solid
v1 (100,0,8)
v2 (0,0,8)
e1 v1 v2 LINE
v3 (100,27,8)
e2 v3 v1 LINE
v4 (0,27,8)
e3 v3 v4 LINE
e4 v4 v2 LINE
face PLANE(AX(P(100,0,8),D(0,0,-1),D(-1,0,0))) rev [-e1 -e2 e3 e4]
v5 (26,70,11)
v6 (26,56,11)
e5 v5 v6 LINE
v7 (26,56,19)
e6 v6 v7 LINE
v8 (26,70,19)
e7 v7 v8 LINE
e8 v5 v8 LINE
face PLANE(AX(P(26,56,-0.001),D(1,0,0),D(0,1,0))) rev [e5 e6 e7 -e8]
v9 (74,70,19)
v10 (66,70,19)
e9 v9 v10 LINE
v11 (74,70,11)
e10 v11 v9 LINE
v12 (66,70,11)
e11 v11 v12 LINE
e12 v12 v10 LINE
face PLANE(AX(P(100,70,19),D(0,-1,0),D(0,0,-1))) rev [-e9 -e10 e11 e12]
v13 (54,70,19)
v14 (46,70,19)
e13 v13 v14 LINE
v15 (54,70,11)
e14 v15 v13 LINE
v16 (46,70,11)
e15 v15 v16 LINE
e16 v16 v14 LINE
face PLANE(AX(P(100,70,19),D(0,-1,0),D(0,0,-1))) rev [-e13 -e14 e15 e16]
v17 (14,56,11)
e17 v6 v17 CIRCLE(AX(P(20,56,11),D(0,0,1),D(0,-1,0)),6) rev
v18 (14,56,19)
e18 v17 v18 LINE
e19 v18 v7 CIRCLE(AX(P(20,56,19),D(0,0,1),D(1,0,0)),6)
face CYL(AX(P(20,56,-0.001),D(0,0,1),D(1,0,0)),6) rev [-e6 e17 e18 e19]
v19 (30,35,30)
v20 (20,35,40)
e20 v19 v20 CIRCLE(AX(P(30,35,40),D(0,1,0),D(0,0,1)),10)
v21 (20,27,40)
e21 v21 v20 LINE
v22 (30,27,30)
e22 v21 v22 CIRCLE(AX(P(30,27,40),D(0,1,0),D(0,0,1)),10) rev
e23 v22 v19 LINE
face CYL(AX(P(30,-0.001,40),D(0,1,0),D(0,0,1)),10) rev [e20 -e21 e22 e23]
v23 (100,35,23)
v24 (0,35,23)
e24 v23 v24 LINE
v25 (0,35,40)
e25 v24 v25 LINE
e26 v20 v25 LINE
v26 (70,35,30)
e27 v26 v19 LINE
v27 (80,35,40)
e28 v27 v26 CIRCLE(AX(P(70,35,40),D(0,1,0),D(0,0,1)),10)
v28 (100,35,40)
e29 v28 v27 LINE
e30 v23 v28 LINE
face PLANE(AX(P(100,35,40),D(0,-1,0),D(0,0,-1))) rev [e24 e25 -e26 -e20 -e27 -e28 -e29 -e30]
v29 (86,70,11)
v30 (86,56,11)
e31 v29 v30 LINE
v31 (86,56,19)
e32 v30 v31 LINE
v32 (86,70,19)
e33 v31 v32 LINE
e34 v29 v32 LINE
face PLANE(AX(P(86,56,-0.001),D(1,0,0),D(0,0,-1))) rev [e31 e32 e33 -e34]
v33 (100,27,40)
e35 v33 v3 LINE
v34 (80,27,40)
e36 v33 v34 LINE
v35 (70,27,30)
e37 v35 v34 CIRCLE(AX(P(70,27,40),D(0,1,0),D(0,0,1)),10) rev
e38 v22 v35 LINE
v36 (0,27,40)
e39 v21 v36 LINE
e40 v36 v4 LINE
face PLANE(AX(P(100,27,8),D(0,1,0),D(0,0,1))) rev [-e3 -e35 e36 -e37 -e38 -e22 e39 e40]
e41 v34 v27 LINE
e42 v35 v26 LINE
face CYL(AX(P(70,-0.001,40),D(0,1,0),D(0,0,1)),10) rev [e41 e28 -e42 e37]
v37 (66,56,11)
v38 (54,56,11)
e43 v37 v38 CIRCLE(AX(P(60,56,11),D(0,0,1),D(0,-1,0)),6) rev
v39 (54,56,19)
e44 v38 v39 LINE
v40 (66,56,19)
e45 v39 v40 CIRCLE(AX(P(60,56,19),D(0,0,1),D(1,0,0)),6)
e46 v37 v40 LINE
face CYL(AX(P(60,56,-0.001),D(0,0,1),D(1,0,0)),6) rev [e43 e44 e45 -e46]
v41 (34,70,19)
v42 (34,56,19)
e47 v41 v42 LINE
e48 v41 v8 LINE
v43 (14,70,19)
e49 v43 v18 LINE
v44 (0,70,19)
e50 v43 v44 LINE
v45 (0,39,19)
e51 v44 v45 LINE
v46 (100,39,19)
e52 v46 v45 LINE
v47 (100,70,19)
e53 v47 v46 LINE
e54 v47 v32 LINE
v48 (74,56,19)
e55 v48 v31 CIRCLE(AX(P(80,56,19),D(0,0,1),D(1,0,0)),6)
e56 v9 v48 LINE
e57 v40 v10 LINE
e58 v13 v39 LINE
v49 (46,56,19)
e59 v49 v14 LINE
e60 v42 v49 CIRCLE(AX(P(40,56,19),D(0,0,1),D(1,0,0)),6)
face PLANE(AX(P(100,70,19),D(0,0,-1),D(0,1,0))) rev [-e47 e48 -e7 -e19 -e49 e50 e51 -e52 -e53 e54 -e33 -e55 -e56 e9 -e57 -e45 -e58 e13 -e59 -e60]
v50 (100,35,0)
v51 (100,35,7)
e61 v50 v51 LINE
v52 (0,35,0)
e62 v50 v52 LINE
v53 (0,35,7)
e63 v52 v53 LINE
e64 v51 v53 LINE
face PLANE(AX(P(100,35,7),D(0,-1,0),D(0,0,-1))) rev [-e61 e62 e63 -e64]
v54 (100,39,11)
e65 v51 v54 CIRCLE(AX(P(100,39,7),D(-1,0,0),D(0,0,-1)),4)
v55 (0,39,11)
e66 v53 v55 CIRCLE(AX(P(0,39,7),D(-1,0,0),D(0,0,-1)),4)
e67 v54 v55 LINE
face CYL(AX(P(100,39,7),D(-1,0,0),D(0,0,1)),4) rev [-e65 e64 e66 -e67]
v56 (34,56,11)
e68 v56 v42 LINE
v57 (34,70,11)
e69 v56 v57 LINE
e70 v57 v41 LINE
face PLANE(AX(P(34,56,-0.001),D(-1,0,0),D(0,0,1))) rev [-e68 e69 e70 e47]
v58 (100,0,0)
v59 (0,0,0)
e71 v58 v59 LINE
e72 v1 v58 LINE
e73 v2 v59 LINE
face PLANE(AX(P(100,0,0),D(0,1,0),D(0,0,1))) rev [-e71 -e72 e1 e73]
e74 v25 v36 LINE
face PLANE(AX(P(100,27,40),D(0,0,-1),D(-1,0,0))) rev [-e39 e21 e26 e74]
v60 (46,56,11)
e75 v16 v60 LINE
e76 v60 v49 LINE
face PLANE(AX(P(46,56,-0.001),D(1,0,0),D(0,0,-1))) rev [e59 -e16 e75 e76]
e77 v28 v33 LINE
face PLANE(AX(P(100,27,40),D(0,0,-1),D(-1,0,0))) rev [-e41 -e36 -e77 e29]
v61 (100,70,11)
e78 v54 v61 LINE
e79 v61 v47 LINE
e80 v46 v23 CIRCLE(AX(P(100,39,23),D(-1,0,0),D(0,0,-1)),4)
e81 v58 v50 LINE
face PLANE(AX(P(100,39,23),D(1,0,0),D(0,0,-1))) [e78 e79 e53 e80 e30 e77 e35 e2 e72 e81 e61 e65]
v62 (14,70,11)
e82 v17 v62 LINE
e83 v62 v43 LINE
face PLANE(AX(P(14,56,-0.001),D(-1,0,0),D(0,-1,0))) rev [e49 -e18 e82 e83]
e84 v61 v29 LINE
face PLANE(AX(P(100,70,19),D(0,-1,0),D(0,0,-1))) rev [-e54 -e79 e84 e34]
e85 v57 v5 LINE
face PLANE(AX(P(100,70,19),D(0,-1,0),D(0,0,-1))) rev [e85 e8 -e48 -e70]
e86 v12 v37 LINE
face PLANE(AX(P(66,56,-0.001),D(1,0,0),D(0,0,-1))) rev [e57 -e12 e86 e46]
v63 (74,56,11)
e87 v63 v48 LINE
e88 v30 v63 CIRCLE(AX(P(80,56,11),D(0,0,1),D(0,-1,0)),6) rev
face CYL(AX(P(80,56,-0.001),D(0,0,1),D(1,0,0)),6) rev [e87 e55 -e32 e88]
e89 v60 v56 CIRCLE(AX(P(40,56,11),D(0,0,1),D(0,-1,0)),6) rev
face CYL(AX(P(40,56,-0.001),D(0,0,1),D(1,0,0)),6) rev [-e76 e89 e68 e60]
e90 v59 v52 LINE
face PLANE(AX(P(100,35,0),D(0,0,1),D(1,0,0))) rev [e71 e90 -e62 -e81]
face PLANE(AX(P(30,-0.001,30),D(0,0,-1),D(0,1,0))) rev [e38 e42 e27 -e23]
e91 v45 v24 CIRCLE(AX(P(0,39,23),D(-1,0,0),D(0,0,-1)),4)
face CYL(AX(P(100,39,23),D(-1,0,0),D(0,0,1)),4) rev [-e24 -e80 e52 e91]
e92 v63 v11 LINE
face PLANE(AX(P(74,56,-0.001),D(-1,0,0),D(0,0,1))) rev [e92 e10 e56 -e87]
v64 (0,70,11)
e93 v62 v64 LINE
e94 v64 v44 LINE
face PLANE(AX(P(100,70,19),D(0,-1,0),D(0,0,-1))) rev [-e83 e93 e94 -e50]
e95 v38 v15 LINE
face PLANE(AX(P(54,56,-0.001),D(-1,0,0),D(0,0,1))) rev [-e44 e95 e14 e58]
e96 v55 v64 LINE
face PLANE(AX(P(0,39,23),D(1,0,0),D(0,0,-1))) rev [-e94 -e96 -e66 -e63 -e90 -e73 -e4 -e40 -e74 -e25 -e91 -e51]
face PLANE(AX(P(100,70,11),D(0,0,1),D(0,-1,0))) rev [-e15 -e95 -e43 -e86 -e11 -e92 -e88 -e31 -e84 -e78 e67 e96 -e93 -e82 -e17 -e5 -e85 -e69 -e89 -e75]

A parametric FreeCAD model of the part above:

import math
import FreeCAD as App
import Part
import Sketcher

V = App.Vector

doc = App.newDocument("Part")
body = doc.addObject("PartDesign::Body", "Body")

sketch1 = body.newObject("Sketcher::SketchObject", "Sketch")
sketch1.AttachmentSupport = (doc.getObject("YZ_Plane"), [""])
sketch1.MapMode = "FlatFace"
sketch1.addGeometry(Part.LineSegment(V(70, 11, 0), V(70, 19, 0)), False)
sketch1.addGeometry(Part.LineSegment(V(70, 19, 0), V(39, 19, 0)), False)
sketch1.addGeometry(Part.ArcOfCircle(Part.Circle(V(39, 23, 0), V(0, 0, 1), 4), math.radians(180), math.radians(270)), False)
sketch1.addGeometry(Part.LineSegment(V(35, 23, 0), V(35, 40, 0)), False)
sketch1.addGeometry(Part.LineSegment(V(35, 40, 0), V(27, 40, 0)), False)
sketch1.addGeometry(Part.LineSegment(V(27, 40, 0), V(27, 8, 0)), False)
sketch1.addGeometry(Part.LineSegment(V(27, 8, 0), V(0, 8, 0)), False)
sketch1.addGeometry(Part.LineSegment(V(0, 8, 0), V(0, 0, 0)), False)
sketch1.addGeometry(Part.LineSegment(V(0, 0, 0), V(35, 0, 0)), False)
sketch1.addGeometry(Part.LineSegment(V(35, 0, 0), V(35, 7, 0)), False)
sketch1.addGeometry(Part.ArcOfCircle(Part.Circle(V(39, 7, 0), V(0, 0, 1), 4), math.radians(90), math.radians(180)), False)
sketch1.addGeometry(Part.LineSegment(V(39, 11, 0), V(70, 11, 0)), False)
sketch1.addConstraint(Sketcher.Constraint("Coincident", 0, 2, 1, 1))
sketch1.addConstraint(Sketcher.Constraint("Tangent", 1, 2, 2, 2))
sketch1.addConstraint(Sketcher.Constraint("Tangent", 2, 1, 3, 1))
sketch1.addConstraint(Sketcher.Constraint("Coincident", 3, 2, 4, 1))
sketch1.addConstraint(Sketcher.Constraint("Coincident", 4, 2, 5, 1))
sketch1.addConstraint(Sketcher.Constraint("Coincident", 5, 2, 6, 1))
sketch1.addConstraint(Sketcher.Constraint("Coincident", 6, 2, 7, 1))
sketch1.addConstraint(Sketcher.Constraint("Coincident", 7, 2, 8, 1))
sketch1.addConstraint(Sketcher.Constraint("Coincident", 8, 2, 9, 1))
sketch1.addConstraint(Sketcher.Constraint("Tangent", 9, 2, 10, 2))
sketch1.addConstraint(Sketcher.Constraint("Tangent", 10, 1, 11, 1))
sketch1.addConstraint(Sketcher.Constraint("Coincident", 11, 2, 0, 1))
sketch1.addConstraint(Sketcher.Constraint("Vertical", 0))
sketch1.addConstraint(Sketcher.Constraint("Horizontal", 1))
sketch1.addConstraint(Sketcher.Constraint("Vertical", 3))
sketch1.addConstraint(Sketcher.Constraint("Horizontal", 4))
sketch1.addConstraint(Sketcher.Constraint("Vertical", 5))
sketch1.addConstraint(Sketcher.Constraint("Horizontal", 6))
sketch1.addConstraint(Sketcher.Constraint("Vertical", 7))
sketch1.addConstraint(Sketcher.Constraint("Horizontal", 8))
sketch1.addConstraint(Sketcher.Constraint("Vertical", 9))
sketch1.addConstraint(Sketcher.Constraint("Horizontal", 11))
sketch1.addConstraint(Sketcher.Constraint("Coincident", 7, 2, -1, 1))
sketch1.addConstraint(Sketcher.Constraint("Equal", 2, 10))
sketch1.addConstraint(Sketcher.Constraint("Vertical", 2, 3, 10, 3))
sketch1.addConstraint(Sketcher.Constraint("Equal", 4, 0))
sketch1.addConstraint(Sketcher.Constraint("Equal", 0, 7))
sketch1.addConstraint(Sketcher.Constraint("Radius", 2, 4.0))
sketch1.addConstraint(Sketcher.Constraint("DistanceX", 1, 2, 1, 1, 31.0))
sketch1.addConstraint(Sketcher.Constraint("DistanceX", 4, 2, 4, 1, 8.0))
sketch1.addConstraint(Sketcher.Constraint("DistanceX", 6, 2, 6, 1, 27.0))
sketch1.addConstraint(Sketcher.Constraint("DistanceY", 3, 1, 3, 2, 17.0))
sketch1.addConstraint(Sketcher.Constraint("DistanceY", 5, 2, 5, 1, 32.0))
pad1 = body.newObject("PartDesign::Pad", "Pad")
pad1.Profile = sketch1
pad1.Length = 100

sketch2 = body.newObject("Sketcher::SketchObject", "Sketch001")
sketch2.AttachmentSupport = (doc.getObject("XY_Plane"), [""])
sketch2.MapMode = "FlatFace"
sketch2.AttachmentOffset = App.Placement(V(0, 0, 19), App.Rotation())
sketch2.addGeometry(Part.LineSegment(V(14, 70, 0), V(14, 56, 0)), False)
sketch2.addGeometry(Part.ArcOfCircle(Part.Circle(V(20, 56, 0), V(0, 0, 1), 6), math.radians(180), math.radians(360)), False)
sketch2.addGeometry(Part.LineSegment(V(26, 56, 0), V(26, 70, 0)), False)
sketch2.addGeometry(Part.LineSegment(V(26, 70, 0), V(14, 70, 0)), False)
sketch2.addConstraint(Sketcher.Constraint("Tangent", 0, 2, 1, 1))
sketch2.addConstraint(Sketcher.Constraint("Tangent", 1, 2, 2, 1))
sketch2.addConstraint(Sketcher.Constraint("Coincident", 2, 2, 3, 1))
sketch2.addConstraint(Sketcher.Constraint("Coincident", 3, 2, 0, 1))
sketch2.addConstraint(Sketcher.Constraint("Vertical", 0))
sketch2.addConstraint(Sketcher.Constraint("Vertical", 2))
sketch2.addConstraint(Sketcher.Constraint("Horizontal", 3))
sketch2.addConstraint(Sketcher.Constraint("Radius", 1, 6.0))
sketch2.addConstraint(Sketcher.Constraint("DistanceY", 0, 2, 0, 1, 14.0))
sketch2.addConstraint(Sketcher.Constraint("DistanceX", -1, 1, 1, 3, 20.0))
sketch2.addConstraint(Sketcher.Constraint("DistanceY", -1, 1, 1, 3, 56.0))
pocket1 = body.newObject("PartDesign::Pocket", "Pocket")
pocket1.Profile = sketch2
pocket1.Type = "UpToFirst"

sketch3 = body.newObject("Sketcher::SketchObject", "Sketch002")
sketch3.AttachmentSupport = (doc.getObject("XY_Plane"), [""])
sketch3.MapMode = "FlatFace"
sketch3.AttachmentOffset = App.Placement(V(0, 0, 19), App.Rotation())
sketch3.addGeometry(Part.LineSegment(V(34, 70, 0), V(34, 56, 0)), False)
sketch3.addGeometry(Part.ArcOfCircle(Part.Circle(V(40, 56, 0), V(0, 0, 1), 6), math.radians(180), math.radians(360)), False)
sketch3.addGeometry(Part.LineSegment(V(46, 56, 0), V(46, 70, 0)), False)
sketch3.addGeometry(Part.LineSegment(V(46, 70, 0), V(34, 70, 0)), False)
sketch3.addConstraint(Sketcher.Constraint("Tangent", 0, 2, 1, 1))
sketch3.addConstraint(Sketcher.Constraint("Tangent", 1, 2, 2, 1))
sketch3.addConstraint(Sketcher.Constraint("Coincident", 2, 2, 3, 1))
sketch3.addConstraint(Sketcher.Constraint("Coincident", 3, 2, 0, 1))
sketch3.addConstraint(Sketcher.Constraint("Vertical", 0))
sketch3.addConstraint(Sketcher.Constraint("Vertical", 2))
sketch3.addConstraint(Sketcher.Constraint("Horizontal", 3))
sketch3.addConstraint(Sketcher.Constraint("Radius", 1, 6.0))
sketch3.addConstraint(Sketcher.Constraint("DistanceY", 0, 2, 0, 1, 14.0))
sketch3.addConstraint(Sketcher.Constraint("DistanceX", -1, 1, 1, 3, 40.0))
sketch3.addConstraint(Sketcher.Constraint("DistanceY", -1, 1, 1, 3, 56.0))
pocket2 = body.newObject("PartDesign::Pocket", "Pocket001")
pocket2.Profile = sketch3
pocket2.Type = "UpToFirst"

sketch4 = body.newObject("Sketcher::SketchObject", "Sketch003")
sketch4.AttachmentSupport = (doc.getObject("XY_Plane"), [""])
sketch4.MapMode = "FlatFace"
sketch4.AttachmentOffset = App.Placement(V(0, 0, 19), App.Rotation())
sketch4.addGeometry(Part.LineSegment(V(54, 70, 0), V(54, 56, 0)), False)
sketch4.addGeometry(Part.ArcOfCircle(Part.Circle(V(60, 56, 0), V(0, 0, 1), 6), math.radians(180), math.radians(360)), False)
sketch4.addGeometry(Part.LineSegment(V(66, 56, 0), V(66, 70, 0)), False)
sketch4.addGeometry(Part.LineSegment(V(66, 70, 0), V(54, 70, 0)), False)
sketch4.addConstraint(Sketcher.Constraint("Tangent", 0, 2, 1, 1))
sketch4.addConstraint(Sketcher.Constraint("Tangent", 1, 2, 2, 1))
sketch4.addConstraint(Sketcher.Constraint("Coincident", 2, 2, 3, 1))
sketch4.addConstraint(Sketcher.Constraint("Coincident", 3, 2, 0, 1))
sketch4.addConstraint(Sketcher.Constraint("Vertical", 0))
sketch4.addConstraint(Sketcher.Constraint("Vertical", 2))
sketch4.addConstraint(Sketcher.Constraint("Horizontal", 3))
sketch4.addConstraint(Sketcher.Constraint("Radius", 1, 6.0))
sketch4.addConstraint(Sketcher.Constraint("DistanceY", 0, 2, 0, 1, 14.0))
sketch4.addConstraint(Sketcher.Constraint("DistanceX", -1, 1, 1, 3, 60.0))
sketch4.addConstraint(Sketcher.Constraint("DistanceY", -1, 1, 1, 3, 56.0))
pocket3 = body.newObject("PartDesign::Pocket", "Pocket002")
pocket3.Profile = sketch4
pocket3.Type = "UpToFirst"

sketch5 = body.newObject("Sketcher::SketchObject", "Sketch004")
sketch5.AttachmentSupport = (doc.getObject("XY_Plane"), [""])
sketch5.MapMode = "FlatFace"
sketch5.AttachmentOffset = App.Placement(V(0, 0, 19), App.Rotation())
sketch5.addGeometry(Part.LineSegment(V(74, 70, 0), V(74, 56, 0)), False)
sketch5.addGeometry(Part.ArcOfCircle(Part.Circle(V(80, 56, 0), V(0, 0, 1), 6), math.radians(180), math.radians(360)), False)
sketch5.addGeometry(Part.LineSegment(V(86, 56, 0), V(86, 70, 0)), False)
sketch5.addGeometry(Part.LineSegment(V(86, 70, 0), V(74, 70, 0)), False)
sketch5.addConstraint(Sketcher.Constraint("Tangent", 0, 2, 1, 1))
sketch5.addConstraint(Sketcher.Constraint("Tangent", 1, 2, 2, 1))
sketch5.addConstraint(Sketcher.Constraint("Coincident", 2, 2, 3, 1))
sketch5.addConstraint(Sketcher.Constraint("Coincident", 3, 2, 0, 1))
sketch5.addConstraint(Sketcher.Constraint("Vertical", 0))
sketch5.addConstraint(Sketcher.Constraint("Vertical", 2))
sketch5.addConstraint(Sketcher.Constraint("Horizontal", 3))
sketch5.addConstraint(Sketcher.Constraint("Radius", 1, 6.0))
sketch5.addConstraint(Sketcher.Constraint("DistanceY", 0, 2, 0, 1, 14.0))
sketch5.addConstraint(Sketcher.Constraint("DistanceX", -1, 1, 1, 3, 80.0))
sketch5.addConstraint(Sketcher.Constraint("DistanceY", -1, 1, 1, 3, 56.0))
pocket4 = body.newObject("PartDesign::Pocket", "Pocket003")
pocket4.Profile = sketch5
pocket4.Type = "UpToFirst"

sketch6 = body.newObject("Sketcher::SketchObject", "Sketch005")
sketch6.AttachmentSupport = (doc.getObject("XZ_Plane"), [""])
sketch6.MapMode = "FlatFace"
sketch6.AttachmentOffset = App.Placement(V(0, 0, -35), App.Rotation())
sketch6.addGeometry(Part.LineSegment(V(20, 40, 0), V(80, 40, 0)), False)
sketch6.addGeometry(Part.ArcOfCircle(Part.Circle(V(70, 40, 0), V(0, 0, 1), 10), math.radians(-90), math.radians(0)), False)
sketch6.addGeometry(Part.LineSegment(V(70, 30, 0), V(30, 30, 0)), False)
sketch6.addGeometry(Part.ArcOfCircle(Part.Circle(V(30, 40, 0), V(0, 0, 1), 10), math.radians(180), math.radians(270)), False)
sketch6.addConstraint(Sketcher.Constraint("Coincident", 0, 2, 1, 2))
sketch6.addConstraint(Sketcher.Constraint("Tangent", 1, 1, 2, 1))
sketch6.addConstraint(Sketcher.Constraint("Tangent", 2, 2, 3, 2))
sketch6.addConstraint(Sketcher.Constraint("Coincident", 3, 1, 0, 1))
sketch6.addConstraint(Sketcher.Constraint("Horizontal", 0))
sketch6.addConstraint(Sketcher.Constraint("Horizontal", 2))
sketch6.addConstraint(Sketcher.Constraint("Equal", 1, 3))
sketch6.addConstraint(Sketcher.Constraint("Horizontal", 3, 3, 0, 2))
sketch6.addConstraint(Sketcher.Constraint("Radius", 1, 10.0))
sketch6.addConstraint(Sketcher.Constraint("DistanceX", 0, 1, 0, 2, 60.0))
sketch6.addConstraint(Sketcher.Constraint("DistanceX", -1, 1, 1, 3, 70.0))
sketch6.addConstraint(Sketcher.Constraint("DistanceY", -1, 1, 1, 3, 40.0))
pocket5 = body.newObject("PartDesign::Pocket", "Pocket004")
pocket5.Profile = sketch6
pocket5.Type = "UpToFirst"
pocket5.Reversed = True

doc.recompute()
